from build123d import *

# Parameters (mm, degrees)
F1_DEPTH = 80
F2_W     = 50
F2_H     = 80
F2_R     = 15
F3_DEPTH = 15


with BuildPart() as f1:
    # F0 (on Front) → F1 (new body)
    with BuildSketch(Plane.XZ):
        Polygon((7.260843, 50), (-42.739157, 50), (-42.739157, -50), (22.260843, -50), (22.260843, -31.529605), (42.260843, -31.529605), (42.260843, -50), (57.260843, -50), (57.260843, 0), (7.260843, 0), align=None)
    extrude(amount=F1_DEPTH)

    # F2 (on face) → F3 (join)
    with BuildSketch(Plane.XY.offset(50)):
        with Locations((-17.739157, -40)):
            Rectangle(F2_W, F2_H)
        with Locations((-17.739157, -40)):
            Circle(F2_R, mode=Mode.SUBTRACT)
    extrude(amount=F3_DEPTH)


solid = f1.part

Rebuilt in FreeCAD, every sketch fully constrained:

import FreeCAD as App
import Part
import Sketcher

V = App.Vector
Q = App.Units.Quantity


def add_polygon(sketch, points):
    """Adds a closed chain of lines whose ends are joined by coincident constraints."""
    first, n = sketch.GeometryCount, len(points)
    for a, b in zip(points, points[1:] + points[:1]):
        sketch.addGeometry(Part.LineSegment(App.Vector(*a, 0), App.Vector(*b, 0)), False)
    for i in range(n):
        sketch.addConstraint(Sketcher.Constraint("Coincident", first + i, 2, first + (i + 1) % n, 1))

doc = App.newDocument("Part")
body = doc.addObject("PartDesign::Body", "Body")

sketch1 = doc.addObject("Sketcher::SketchObject", "Sketch")
body.addObject(sketch1)
sketch1.AttachmentSupport = (doc.XZ_Plane, [""])
sketch1.MapMode = "FlatFace"
add_polygon(sketch1, [(7, 50), (-43, 50), (-43, -50), (22, -50), (22, -32), (42, -32), (42, -50), (57, -50), (57, 0), (7, 0)])
sketch1.addConstraint([
    Sketcher.Constraint("Horizontal", 0),
    Sketcher.Constraint("Vertical", 1),
    Sketcher.Constraint("Horizontal", 2),
    Sketcher.Constraint("Vertical", 3),
    Sketcher.Constraint("Horizontal", 4),
    Sketcher.Constraint("Vertical", 5),
    Sketcher.Constraint("Horizontal", 6),
    Sketcher.Constraint("Vertical", 7),
    Sketcher.Constraint("Horizontal", 8),
    Sketcher.Constraint("Vertical", 9),
    Sketcher.Constraint("PointOnObject", 7, 2, -1),
    Sketcher.Constraint("Horizontal", 2, 2, 5, 2),
    Sketcher.Constraint("Equal", 0, 8),
    Sketcher.Constraint("Equal", 8, 7),
    Sketcher.Constraint("Equal", 7, 9),
    Sketcher.Constraint("DistanceX", 0, 2, 0, 1, Q("50 mm")),
    Sketcher.Constraint("DistanceX", 2, 1, 2, 2, Q("65 mm")),
    Sketcher.Constraint("DistanceX", 4, 1, 4, 2, Q("20 mm")),
    Sketcher.Constraint("DistanceY", 3, 1, 3, 2, Q("18.470395 mm")),
    Sketcher.Constraint("DistanceX", 0, 2, -1, 1, Q("42.739157 mm")),
])
pad1 = doc.addObject("PartDesign::Pad", "Pad")
body.addObject(pad1)
pad1.Profile = sketch1
pad1.Length = 80

sketch2 = doc.addObject("Sketcher::SketchObject", "Sketch001")
body.addObject(sketch2)
sketch2.AttachmentSupport = (doc.XY_Plane, [""])
sketch2.MapMode = "FlatFace"
sketch2.AttachmentOffset = App.Placement(V(0, 0, 50), App.Rotation())
add_polygon(sketch2, [(-43, 0), (-43, -80), (7, -80), (7, 0)])
sketch2.addGeometry(Part.Circle(V(-18, -40, 0), V(0, 0, 1), 15), False)
sketch2.addConstraint([
    Sketcher.Constraint("Vertical", 0),
    Sketcher.Constraint("Horizontal", 1),
    Sketcher.Constraint("Vertical", 2),
    Sketcher.Constraint("Horizontal", 3),
    Sketcher.Constraint("PointOnObject", 2, 2, -1),
    Sketcher.Constraint("Diameter", 4, Q("30 mm")),
    Sketcher.Constraint("DistanceX", 1, 1, 1, 2, Q("50 mm")),
    Sketcher.Constraint("DistanceY", 0, 2, 0, 1, Q("80 mm")),
    Sketcher.Constraint("DistanceY", 4, 3, -1, 1, Q("40 mm")),
    Sketcher.Constraint("DistanceX", 0, 2, 4, 3, Q("25 mm")),
    Sketcher.Constraint("DistanceX", 4, 3, -1, 1, Q("17.739157 mm")),
])
pad2 = doc.addObject("PartDesign::Pad", "Pad001")
body.addObject(pad2)
pad2.Profile = sketch2
pad2.Length = 15

doc.recompute()
